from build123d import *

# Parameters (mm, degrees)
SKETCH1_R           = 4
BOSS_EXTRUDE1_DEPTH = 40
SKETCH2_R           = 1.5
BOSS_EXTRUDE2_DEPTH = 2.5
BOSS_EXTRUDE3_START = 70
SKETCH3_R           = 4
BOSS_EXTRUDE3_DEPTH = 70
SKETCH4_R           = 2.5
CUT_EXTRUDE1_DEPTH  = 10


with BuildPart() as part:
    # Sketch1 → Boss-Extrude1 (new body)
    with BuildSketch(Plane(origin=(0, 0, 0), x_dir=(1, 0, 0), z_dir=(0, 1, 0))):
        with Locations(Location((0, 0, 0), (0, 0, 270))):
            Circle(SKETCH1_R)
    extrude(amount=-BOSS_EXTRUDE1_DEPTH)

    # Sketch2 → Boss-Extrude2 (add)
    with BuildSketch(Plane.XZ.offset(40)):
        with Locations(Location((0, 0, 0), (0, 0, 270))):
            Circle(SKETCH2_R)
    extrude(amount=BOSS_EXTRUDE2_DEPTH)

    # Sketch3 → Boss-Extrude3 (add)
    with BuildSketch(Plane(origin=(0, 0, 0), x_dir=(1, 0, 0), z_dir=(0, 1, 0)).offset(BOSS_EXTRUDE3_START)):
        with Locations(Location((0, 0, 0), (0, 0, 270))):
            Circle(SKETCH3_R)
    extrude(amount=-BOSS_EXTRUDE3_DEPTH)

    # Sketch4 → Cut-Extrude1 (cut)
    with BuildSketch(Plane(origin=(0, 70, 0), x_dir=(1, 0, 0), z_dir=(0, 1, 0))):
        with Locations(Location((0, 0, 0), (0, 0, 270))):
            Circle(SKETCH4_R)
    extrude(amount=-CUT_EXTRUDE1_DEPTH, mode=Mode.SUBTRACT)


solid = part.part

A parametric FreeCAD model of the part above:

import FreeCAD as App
import Part
import Sketcher

doc = App.newDocument("Part")
body = doc.addObject("PartDesign::Body", "Body")

# Sketch on XZ plane
sketch1 = body.newObject("Sketcher::SketchObject", "Sketch")
sketch1.AttachmentSupport = (doc.getObject("XZ_Plane"), [""])
sketch1.MapMode = "FlatFace"
sketch1.addGeometry(Part.Circle(App.Vector(0, 0, 0), App.Vector(0, 0, 1), 4), False)
sketch1.addConstraint(Sketcher.Constraint("Coincident", 0, 3, -1, 1))
sketch1.addConstraint(Sketcher.Constraint("Diameter", 0, 8.0))
pad1 = body.newObject("PartDesign::Pad", "Pad")
pad1.Profile = sketch1
pad1.Length = 40

# Sketch on XZ plane
sketch2 = body.newObject("Sketcher::SketchObject", "Sketch001")
sketch2.AttachmentSupport = (doc.getObject("XZ_Plane"), [""])
sketch2.MapMode = "FlatFace"
sketch2.AttachmentOffset = App.Placement(App.Vector(0, 0, 40), App.Rotation())
sketch2.addGeometry(Part.Circle(App.Vector(0, 0, 0), App.Vector(0, 0, 1), 1.5), False)
sketch2.addConstraint(Sketcher.Constraint("Coincident", 0, 3, -1, 1))
sketch2.addConstraint(Sketcher.Constraint("Diameter", 0, 3.0))
pad2 = body.newObject("PartDesign::Pad", "Pad001")
pad2.Profile = sketch2
pad2.Length = 2.5

# Sketch on XZ plane
sketch3 = body.newObject("Sketcher::SketchObject", "Sketch002")
sketch3.AttachmentSupport = (doc.getObject("XZ_Plane"), [""])
sketch3.MapMode = "FlatFace"
sketch3.AttachmentOffset = App.Placement(App.Vector(0, 0, -70), App.Rotation())
sketch3.addGeometry(Part.Circle(App.Vector(0, 0, 0), App.Vector(0, 0, 1), 4), False)
sketch3.addConstraint(Sketcher.Constraint("Coincident", 0, 3, -1, 1))
sketch3.addConstraint(Sketcher.Constraint("Diameter", 0, 8.0))
pad3 = body.newObject("PartDesign::Pad", "Pad002")
pad3.Profile = sketch3
pad3.Length = 70

# Sketch on XZ plane
sketch4 = body.newObject("Sketcher::SketchObject", "Sketch003")
sketch4.AttachmentSupport = (doc.getObject("XZ_Plane"), [""])
sketch4.MapMode = "FlatFace"
sketch4.AttachmentOffset = App.Placement(App.Vector(0, 0, -70), App.Rotation())
sketch4.addGeometry(Part.Circle(App.Vector(0, 0, 0), App.Vector(0, 0, 1), 2.5), False)
sketch4.addConstraint(Sketcher.Constraint("Coincident", 0, 3, -1, 1))
sketch4.addConstraint(Sketcher.Constraint("Diameter", 0, 5.0))
pocket1 = body.newObject("PartDesign::Pocket", "Pocket")
pocket1.Profile = sketch4
pocket1.Length = 10
pocket1.Reversed = True

doc.recompute()
